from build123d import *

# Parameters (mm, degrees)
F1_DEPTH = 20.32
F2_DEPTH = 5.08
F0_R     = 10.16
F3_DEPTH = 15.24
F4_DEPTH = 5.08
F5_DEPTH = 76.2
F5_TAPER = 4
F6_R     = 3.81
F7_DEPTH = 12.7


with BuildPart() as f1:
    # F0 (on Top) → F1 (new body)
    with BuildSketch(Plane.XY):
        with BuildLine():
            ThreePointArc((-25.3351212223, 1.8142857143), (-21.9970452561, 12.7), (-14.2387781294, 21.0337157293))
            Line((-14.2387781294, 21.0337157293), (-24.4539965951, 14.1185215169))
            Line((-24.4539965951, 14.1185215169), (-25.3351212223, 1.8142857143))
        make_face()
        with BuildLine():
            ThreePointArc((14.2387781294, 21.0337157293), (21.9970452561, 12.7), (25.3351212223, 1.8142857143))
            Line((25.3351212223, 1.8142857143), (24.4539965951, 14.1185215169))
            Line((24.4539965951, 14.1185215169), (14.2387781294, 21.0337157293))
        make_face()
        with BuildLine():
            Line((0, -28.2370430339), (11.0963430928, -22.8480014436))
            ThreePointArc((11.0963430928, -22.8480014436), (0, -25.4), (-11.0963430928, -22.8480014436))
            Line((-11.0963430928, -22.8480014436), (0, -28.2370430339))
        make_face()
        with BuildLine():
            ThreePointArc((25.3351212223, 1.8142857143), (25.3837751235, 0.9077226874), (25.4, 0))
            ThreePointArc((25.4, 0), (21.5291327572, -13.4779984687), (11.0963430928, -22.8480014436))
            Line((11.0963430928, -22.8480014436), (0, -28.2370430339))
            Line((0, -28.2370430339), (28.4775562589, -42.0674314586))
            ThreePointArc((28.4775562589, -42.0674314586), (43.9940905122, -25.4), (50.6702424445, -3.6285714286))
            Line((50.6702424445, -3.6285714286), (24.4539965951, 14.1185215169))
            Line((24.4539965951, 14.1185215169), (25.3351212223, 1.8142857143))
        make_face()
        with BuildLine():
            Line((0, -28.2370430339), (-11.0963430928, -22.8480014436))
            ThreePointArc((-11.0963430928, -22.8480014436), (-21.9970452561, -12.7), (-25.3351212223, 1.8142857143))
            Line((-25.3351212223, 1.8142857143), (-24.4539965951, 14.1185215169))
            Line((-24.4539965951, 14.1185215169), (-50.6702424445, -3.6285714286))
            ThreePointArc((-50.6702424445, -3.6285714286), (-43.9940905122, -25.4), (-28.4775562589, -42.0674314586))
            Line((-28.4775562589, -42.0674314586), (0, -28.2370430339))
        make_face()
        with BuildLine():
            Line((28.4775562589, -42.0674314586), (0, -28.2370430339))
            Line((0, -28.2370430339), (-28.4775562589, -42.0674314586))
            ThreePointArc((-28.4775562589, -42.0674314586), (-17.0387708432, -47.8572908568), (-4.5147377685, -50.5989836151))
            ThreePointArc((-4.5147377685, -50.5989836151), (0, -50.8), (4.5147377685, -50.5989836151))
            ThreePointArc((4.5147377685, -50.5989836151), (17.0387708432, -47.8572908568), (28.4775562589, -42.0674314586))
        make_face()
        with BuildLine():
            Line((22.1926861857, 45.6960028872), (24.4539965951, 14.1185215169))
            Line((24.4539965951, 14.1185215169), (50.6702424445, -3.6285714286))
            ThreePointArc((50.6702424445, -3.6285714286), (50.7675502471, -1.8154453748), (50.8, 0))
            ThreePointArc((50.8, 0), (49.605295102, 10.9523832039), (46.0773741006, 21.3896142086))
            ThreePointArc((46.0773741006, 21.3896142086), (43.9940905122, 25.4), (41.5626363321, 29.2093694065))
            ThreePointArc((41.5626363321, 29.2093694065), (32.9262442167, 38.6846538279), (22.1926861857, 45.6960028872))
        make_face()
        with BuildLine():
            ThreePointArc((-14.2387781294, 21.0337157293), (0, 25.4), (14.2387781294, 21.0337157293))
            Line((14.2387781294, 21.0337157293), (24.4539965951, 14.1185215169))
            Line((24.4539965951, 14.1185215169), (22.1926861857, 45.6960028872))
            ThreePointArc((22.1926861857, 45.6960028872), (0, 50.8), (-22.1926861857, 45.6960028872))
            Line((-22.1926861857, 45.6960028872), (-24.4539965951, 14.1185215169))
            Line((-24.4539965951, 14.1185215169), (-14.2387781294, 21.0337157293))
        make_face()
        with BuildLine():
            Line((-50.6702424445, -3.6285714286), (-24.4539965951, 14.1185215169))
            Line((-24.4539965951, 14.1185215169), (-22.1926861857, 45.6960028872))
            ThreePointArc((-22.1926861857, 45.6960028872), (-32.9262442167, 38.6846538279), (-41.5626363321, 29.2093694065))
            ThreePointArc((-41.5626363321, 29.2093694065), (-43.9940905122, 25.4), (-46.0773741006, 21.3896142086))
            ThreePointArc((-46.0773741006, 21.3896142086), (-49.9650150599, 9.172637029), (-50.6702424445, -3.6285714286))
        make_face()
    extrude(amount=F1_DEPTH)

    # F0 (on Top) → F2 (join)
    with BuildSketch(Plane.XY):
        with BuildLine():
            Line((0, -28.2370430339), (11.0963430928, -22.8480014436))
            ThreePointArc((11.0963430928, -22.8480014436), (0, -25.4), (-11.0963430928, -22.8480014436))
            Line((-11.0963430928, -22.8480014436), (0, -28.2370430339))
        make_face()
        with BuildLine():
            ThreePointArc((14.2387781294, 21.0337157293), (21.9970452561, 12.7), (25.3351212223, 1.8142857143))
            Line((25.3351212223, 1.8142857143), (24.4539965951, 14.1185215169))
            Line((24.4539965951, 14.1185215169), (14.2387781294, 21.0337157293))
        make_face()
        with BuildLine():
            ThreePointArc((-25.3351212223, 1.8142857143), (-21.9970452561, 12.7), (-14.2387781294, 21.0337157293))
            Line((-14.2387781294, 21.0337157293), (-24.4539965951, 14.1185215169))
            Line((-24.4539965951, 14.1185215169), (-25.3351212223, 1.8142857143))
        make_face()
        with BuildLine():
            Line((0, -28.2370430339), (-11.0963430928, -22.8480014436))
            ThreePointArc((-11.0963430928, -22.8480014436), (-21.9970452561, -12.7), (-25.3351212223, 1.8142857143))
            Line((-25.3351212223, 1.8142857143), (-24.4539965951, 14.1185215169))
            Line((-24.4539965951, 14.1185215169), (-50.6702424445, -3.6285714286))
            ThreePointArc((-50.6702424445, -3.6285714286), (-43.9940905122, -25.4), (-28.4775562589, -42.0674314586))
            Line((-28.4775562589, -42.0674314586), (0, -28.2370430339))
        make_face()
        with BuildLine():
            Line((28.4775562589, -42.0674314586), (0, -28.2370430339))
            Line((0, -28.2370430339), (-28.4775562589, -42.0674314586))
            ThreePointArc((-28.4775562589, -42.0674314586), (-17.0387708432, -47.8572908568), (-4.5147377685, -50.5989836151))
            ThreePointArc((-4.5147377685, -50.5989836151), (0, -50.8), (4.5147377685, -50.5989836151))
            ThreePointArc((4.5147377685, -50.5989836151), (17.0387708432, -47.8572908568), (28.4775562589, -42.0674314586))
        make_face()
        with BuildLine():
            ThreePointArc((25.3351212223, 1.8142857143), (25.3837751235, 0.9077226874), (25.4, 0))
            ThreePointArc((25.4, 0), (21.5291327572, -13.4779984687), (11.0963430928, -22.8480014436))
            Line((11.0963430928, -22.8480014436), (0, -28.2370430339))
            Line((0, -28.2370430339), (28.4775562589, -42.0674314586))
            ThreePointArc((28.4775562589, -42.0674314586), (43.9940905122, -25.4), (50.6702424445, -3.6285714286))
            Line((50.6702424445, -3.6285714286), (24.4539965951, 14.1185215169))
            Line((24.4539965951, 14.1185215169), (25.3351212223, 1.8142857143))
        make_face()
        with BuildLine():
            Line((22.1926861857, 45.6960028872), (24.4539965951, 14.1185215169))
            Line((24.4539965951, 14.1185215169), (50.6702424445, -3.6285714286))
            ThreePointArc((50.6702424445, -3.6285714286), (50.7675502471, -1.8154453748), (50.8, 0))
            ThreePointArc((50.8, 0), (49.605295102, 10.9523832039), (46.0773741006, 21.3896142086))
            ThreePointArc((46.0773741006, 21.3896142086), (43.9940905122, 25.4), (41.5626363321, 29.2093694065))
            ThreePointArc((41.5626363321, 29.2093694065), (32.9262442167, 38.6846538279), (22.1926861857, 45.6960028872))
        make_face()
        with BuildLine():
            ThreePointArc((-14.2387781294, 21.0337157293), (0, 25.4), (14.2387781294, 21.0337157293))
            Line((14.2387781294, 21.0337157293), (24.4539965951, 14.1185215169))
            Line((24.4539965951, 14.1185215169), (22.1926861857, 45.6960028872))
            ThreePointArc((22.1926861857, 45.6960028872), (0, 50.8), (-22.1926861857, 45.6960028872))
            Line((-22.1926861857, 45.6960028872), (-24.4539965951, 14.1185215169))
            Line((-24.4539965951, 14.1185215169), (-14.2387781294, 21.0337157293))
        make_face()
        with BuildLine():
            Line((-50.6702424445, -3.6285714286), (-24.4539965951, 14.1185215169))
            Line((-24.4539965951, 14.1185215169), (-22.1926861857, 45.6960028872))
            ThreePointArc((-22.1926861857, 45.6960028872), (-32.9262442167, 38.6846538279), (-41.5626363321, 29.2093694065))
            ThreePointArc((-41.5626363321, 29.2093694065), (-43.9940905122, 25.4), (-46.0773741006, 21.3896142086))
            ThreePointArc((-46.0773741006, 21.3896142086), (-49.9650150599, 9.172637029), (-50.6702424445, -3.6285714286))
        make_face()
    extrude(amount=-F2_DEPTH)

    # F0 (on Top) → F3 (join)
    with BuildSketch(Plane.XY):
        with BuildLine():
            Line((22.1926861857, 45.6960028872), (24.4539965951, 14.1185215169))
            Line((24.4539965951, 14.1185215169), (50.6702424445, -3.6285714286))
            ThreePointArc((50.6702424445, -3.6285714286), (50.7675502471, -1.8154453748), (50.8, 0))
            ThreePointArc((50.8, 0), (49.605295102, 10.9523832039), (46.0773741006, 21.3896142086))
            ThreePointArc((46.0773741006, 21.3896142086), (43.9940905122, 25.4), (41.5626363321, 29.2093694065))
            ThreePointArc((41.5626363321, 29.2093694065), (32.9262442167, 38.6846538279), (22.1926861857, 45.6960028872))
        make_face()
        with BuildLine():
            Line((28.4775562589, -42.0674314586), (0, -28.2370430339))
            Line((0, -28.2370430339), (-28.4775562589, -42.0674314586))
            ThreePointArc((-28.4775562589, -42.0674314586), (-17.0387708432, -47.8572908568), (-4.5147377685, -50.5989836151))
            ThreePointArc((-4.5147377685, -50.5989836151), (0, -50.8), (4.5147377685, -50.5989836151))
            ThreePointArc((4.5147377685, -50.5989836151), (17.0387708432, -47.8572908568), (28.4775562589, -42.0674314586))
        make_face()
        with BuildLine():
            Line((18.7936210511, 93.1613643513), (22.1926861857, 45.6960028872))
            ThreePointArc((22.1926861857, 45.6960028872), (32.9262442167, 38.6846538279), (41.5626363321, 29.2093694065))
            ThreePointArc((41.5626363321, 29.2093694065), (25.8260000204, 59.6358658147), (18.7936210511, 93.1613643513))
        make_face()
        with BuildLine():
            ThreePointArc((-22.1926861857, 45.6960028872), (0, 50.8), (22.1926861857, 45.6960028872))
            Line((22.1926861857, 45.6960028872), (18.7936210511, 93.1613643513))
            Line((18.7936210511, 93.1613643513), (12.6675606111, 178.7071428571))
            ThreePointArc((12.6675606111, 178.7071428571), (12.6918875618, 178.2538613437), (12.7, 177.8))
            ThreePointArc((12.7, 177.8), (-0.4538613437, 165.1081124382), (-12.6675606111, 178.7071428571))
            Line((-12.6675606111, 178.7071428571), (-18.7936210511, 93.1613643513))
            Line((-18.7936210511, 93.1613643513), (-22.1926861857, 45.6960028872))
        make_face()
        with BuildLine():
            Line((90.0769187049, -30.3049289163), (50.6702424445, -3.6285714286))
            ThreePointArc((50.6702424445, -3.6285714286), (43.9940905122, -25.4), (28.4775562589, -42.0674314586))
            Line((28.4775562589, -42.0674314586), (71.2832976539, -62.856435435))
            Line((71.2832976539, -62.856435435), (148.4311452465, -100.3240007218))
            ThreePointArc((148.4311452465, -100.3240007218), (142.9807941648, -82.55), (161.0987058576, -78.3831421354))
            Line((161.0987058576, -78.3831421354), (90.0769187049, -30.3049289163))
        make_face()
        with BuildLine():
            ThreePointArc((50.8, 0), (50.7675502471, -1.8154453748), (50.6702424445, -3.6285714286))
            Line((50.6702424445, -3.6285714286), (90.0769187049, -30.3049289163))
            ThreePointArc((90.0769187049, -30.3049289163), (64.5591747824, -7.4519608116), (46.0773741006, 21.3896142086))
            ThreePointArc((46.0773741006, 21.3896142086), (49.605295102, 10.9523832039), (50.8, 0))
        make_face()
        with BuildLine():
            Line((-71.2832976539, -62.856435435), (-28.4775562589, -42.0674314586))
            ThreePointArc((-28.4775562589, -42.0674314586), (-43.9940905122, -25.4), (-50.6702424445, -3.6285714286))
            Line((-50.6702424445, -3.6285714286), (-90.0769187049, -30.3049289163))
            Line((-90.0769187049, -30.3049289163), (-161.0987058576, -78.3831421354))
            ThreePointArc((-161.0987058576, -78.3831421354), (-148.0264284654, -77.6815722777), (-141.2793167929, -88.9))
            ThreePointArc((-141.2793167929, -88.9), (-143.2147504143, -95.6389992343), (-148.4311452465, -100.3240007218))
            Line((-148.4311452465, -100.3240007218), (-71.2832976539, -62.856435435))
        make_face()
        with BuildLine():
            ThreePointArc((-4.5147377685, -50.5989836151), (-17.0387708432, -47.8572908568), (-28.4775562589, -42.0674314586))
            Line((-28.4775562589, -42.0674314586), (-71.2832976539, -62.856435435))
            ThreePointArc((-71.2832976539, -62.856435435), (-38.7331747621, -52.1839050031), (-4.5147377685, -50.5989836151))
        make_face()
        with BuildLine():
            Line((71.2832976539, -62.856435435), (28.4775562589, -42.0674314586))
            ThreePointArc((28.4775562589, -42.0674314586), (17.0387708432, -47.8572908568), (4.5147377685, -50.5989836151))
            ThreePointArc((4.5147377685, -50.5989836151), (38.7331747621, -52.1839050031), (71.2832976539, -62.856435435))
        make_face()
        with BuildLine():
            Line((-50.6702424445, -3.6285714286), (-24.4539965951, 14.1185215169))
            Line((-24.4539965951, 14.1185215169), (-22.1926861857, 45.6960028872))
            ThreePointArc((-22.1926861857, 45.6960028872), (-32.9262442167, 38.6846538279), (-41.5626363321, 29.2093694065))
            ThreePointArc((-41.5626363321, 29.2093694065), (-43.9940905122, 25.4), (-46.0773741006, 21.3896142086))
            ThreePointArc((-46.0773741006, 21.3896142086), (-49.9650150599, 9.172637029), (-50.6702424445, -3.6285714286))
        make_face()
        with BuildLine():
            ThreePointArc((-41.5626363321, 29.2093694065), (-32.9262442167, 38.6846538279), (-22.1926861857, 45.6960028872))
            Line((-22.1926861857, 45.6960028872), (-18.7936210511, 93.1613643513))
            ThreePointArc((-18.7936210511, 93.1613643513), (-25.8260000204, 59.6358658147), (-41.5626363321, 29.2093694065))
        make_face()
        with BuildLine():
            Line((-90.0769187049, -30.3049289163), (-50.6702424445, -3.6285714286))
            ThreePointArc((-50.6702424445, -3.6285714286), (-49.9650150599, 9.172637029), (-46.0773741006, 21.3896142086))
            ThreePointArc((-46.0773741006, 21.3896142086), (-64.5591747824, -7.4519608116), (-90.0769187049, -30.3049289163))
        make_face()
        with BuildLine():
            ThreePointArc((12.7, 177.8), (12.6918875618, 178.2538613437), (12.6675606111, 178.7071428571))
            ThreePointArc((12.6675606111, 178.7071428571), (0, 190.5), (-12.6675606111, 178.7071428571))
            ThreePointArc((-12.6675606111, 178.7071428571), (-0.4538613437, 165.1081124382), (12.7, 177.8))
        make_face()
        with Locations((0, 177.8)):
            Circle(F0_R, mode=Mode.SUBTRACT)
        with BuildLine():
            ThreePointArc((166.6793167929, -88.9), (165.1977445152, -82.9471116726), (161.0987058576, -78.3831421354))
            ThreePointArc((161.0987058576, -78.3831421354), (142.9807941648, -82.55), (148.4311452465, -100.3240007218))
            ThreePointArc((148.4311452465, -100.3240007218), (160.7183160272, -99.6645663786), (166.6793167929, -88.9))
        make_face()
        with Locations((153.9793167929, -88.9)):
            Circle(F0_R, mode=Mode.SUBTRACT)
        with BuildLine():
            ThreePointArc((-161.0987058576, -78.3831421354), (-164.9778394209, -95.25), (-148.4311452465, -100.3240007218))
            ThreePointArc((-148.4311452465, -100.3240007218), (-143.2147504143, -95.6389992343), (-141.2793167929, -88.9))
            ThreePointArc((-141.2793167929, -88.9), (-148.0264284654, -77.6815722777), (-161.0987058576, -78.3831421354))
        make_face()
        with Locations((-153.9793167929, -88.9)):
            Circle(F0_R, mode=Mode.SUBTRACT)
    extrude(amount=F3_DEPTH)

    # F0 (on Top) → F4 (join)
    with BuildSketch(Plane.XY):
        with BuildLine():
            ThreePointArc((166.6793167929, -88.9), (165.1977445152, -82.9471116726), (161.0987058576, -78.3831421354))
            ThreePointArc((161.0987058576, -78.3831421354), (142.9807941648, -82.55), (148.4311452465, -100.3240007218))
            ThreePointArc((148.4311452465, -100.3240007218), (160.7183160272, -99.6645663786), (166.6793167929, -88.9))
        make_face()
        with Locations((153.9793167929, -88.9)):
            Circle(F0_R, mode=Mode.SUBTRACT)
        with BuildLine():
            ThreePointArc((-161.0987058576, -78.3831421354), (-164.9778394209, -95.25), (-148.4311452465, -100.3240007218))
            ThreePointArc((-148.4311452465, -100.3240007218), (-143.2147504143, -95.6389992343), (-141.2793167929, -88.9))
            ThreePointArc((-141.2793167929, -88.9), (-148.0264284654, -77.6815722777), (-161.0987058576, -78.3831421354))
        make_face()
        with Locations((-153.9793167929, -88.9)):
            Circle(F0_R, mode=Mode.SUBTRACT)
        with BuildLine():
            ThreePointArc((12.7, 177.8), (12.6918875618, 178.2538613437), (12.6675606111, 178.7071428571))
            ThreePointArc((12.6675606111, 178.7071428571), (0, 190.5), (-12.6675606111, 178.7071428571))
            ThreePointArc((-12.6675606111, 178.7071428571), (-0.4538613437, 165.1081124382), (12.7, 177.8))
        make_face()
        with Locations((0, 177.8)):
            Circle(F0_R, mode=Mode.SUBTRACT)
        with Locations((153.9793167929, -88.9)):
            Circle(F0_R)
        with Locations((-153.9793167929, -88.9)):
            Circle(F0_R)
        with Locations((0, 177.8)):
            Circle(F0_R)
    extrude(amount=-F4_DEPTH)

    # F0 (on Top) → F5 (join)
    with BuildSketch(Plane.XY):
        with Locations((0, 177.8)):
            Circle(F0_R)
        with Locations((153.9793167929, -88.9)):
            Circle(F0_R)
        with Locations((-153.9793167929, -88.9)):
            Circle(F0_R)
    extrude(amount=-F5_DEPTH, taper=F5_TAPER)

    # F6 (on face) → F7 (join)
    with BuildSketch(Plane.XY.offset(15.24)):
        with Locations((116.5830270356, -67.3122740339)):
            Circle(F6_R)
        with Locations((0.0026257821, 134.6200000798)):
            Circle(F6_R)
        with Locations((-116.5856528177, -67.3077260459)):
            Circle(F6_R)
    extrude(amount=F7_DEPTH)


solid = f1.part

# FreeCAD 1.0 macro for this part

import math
import FreeCAD as App
import Part
import Sketcher
Q = App.Units.Quantity

doc = App.newDocument("Part")
body = doc.addObject("PartDesign::Body", "Body")

sketch1 = body.newObject("Sketcher::SketchObject", "Sketch")
sketch1.AttachmentSupport = (doc.getObject("XY_Plane"), [""])
sketch1.MapMode = "FlatFace"
sketch1.addGeometry(Part.ArcOfCircle(Part.Circle(App.Vector(0, 0, 0), App.Vector(0, 0, 1), 50.8), math.radians(-176), math.radians(-124)), False)
sketch1.addGeometry(Part.ArcOfCircle(Part.Circle(App.Vector(0, 0, 0), App.Vector(0, 0, 1), 50.8), math.radians(-124), math.radians(-85)), False)
sketch1.addGeometry(Part.ArcOfCircle(Part.Circle(App.Vector(0, 0, 0), App.Vector(0, 0, 1), 50.8), math.radians(-85), math.radians(-56)), False)
sketch1.addGeometry(Part.ArcOfCircle(Part.Circle(App.Vector(0, 0, 0), App.Vector(0, 0, 1), 50.8), math.radians(-56), math.radians(-4)), False)
sketch1.addGeometry(Part.ArcOfCircle(Part.Circle(App.Vector(0, 0, 0), App.Vector(0, 0, 1), 50.8), math.radians(-4.1), math.radians(0)), False)
sketch1.addGeometry(Part.ArcOfCircle(Part.Circle(App.Vector(0, 0, 0), App.Vector(0, 0, 1), 50.8), math.radians(0), math.radians(25)), False)
sketch1.addGeometry(Part.ArcOfCircle(Part.Circle(App.Vector(0, 0, 0), App.Vector(0, 0, 1), 50.8), math.radians(24.9), math.radians(35.1)), False)
sketch1.addGeometry(Part.ArcOfCircle(Part.Circle(App.Vector(0, 0, 0), App.Vector(0, 0, 1), 50.8), math.radians(35), math.radians(64)), False)
sketch1.addGeometry(Part.ArcOfCircle(Part.Circle(App.Vector(0, 0, 0), App.Vector(0, 0, 1), 50.8), math.radians(64), math.radians(116)), False)
sketch1.addGeometry(Part.ArcOfCircle(Part.Circle(App.Vector(0, 0, 0), App.Vector(0, 0, 1), 50.8), math.radians(116), math.radians(145)), False)
sketch1.addGeometry(Part.ArcOfCircle(Part.Circle(App.Vector(0, 0, 0), App.Vector(0, 0, 1), 50.8), math.radians(144.9), math.radians(155.1)), False)
sketch1.addGeometry(Part.ArcOfCircle(Part.Circle(App.Vector(0, 0, 0), App.Vector(0, 0, 1), 50.8), math.radians(155), math.radians(184)), False)
sketch1.addGeometry(Part.ArcOfCircle(Part.Circle(App.Vector(0, 0, 0), App.Vector(0, 0, 1), 25.4), math.radians(124), math.radians(176)), False)
sketch1.addGeometry(Part.ArcOfCircle(Part.Circle(App.Vector(0, 0, 0), App.Vector(0, 0, 1), 25.4), math.radians(56), math.radians(124)), False)
sketch1.addGeometry(Part.ArcOfCircle(Part.Circle(App.Vector(0, 0, 0), App.Vector(0, 0, 1), 25.4), math.radians(4), math.radians(56)), False)
sketch1.addGeometry(Part.ArcOfCircle(Part.Circle(App.Vector(0, 0, 0), App.Vector(0, 0, 1), 25.4), math.radians(0), math.radians(4.1)), False)
sketch1.addGeometry(Part.ArcOfCircle(Part.Circle(App.Vector(0, 0, 0), App.Vector(0, 0, 1), 25.4), math.radians(-116), math.radians(0)), False)
sketch1.addGeometry(Part.ArcOfCircle(Part.Circle(App.Vector(0, 0, 0), App.Vector(0, 0, 1), 25.4), math.radians(176), math.radians(244)), False)
sketch1.addConstraint(Sketcher.Constraint("Tangent", 0, 2, 1, 1))
sketch1.addConstraint(Sketcher.Constraint("Tangent", 1, 2, 2, 1))
sketch1.addConstraint(Sketcher.Constraint("Tangent", 2, 2, 3, 1))
sketch1.addConstraint(Sketcher.Constraint("Tangent", 3, 2, 4, 1))
sketch1.addConstraint(Sketcher.Constraint("Tangent", 4, 2, 5, 1))
sketch1.addConstraint(Sketcher.Constraint("Tangent", 5, 2, 6, 1))
sketch1.addConstraint(Sketcher.Constraint("Tangent", 6, 2, 7, 1))
sketch1.addConstraint(Sketcher.Constraint("Tangent", 7, 2, 8, 1))
sketch1.addConstraint(Sketcher.Constraint("Tangent", 8, 2, 9, 1))
sketch1.addConstraint(Sketcher.Constraint("Tangent", 9, 2, 10, 1))
sketch1.addConstraint(Sketcher.Constraint("Tangent", 10, 2, 11, 1))
sketch1.addConstraint(Sketcher.Constraint("Tangent", 11, 2, 0, 1))
sketch1.addConstraint(Sketcher.Constraint("Tangent", 12, 1, 13, 2))
sketch1.addConstraint(Sketcher.Constraint("Tangent", 13, 1, 14, 2))
sketch1.addConstraint(Sketcher.Constraint("Tangent", 14, 1, 15, 2))
sketch1.addConstraint(Sketcher.Constraint("Tangent", 15, 1, 16, 2))
sketch1.addConstraint(Sketcher.Constraint("Tangent", 16, 1, 17, 2))
sketch1.addConstraint(Sketcher.Constraint("Tangent", 17, 1, 12, 2))
sketch1.addConstraint(Sketcher.Constraint("Coincident", 0, 3, -1, 1))
sketch1.addConstraint(Sketcher.Constraint("Coincident", 2, 3, -1, 1))
sketch1.addConstraint(Sketcher.Constraint("Coincident", 4, 3, -1, 1))
sketch1.addConstraint(Sketcher.Constraint("Coincident", 6, 3, -1, 1))
sketch1.addConstraint(Sketcher.Constraint("Coincident", 8, 3, -1, 1))
sketch1.addConstraint(Sketcher.Constraint("Coincident", 12, 3, -1, 1))
sketch1.addConstraint(Sketcher.Constraint("Coincident", 14, 3, -1, 1))
sketch1.addConstraint(Sketcher.Constraint("Equal", 8, 9))
sketch1.addConstraint(Sketcher.Constraint("Equal", 14, 15))
sketch1.addConstraint(Sketcher.Constraint("PointOnObject", 4, 2, -1))
sketch1.addConstraint(Sketcher.Constraint("PointOnObject", 15, 1, -1))
sketch1.addConstraint(Sketcher.Constraint("Horizontal", 0, 2, 2, 2))
sketch1.addConstraint(Sketcher.Constraint("Horizontal", 7, 2, 8, 2))
sketch1.addConstraint(Sketcher.Constraint("Horizontal", 6, 2, 9, 2))
sketch1.addConstraint(Sketcher.Constraint("Horizontal", 5, 2, 10, 2))
sketch1.addConstraint(Sketcher.Constraint("Horizontal", 3, 2, 11, 2))
sketch1.addConstraint(Sketcher.Constraint("Horizontal", 12, 1, 13, 1))
sketch1.addConstraint(Sketcher.Constraint("Horizontal", 14, 1, 17, 1))
sketch1.addConstraint(Sketcher.Constraint("Radius", 0, Q("2 in")))
sketch1.addConstraint(Sketcher.Constraint("Radius", 12, Q("1 in")))
sketch1.addConstraint(Sketcher.Constraint("DistanceY", 16, 1, -1, 1, 22.848001))
sketch1.addConstraint(Sketcher.Constraint("DistanceY", 0, 2, -1, 1, 42.067431))
sketch1.addConstraint(Sketcher.Constraint("DistanceY", 3, 2, -1, 1, 3.628571))
sketch1.addConstraint(Sketcher.Constraint("DistanceY", -1, 1, 6, 2, 29.209369))
sketch1.addConstraint(Sketcher.Constraint("DistanceX", 12, 1, -1, 1, 14.238778))
sketch1.addConstraint(Sketcher.Constraint("DistanceX", -1, 1, 14, 1, 25.335121))
sketch1.addConstraint(Sketcher.Constraint("DistanceX", 1, 2, 2, 2, 23.962818))
sketch1.addConstraint(Sketcher.Constraint("DistanceX", 5, 2, 3, 2, 4.592868))
sketch1.addConstraint(Sketcher.Constraint("DistanceX", 7, 2, 6, 2, 19.36995))
pad1 = body.newObject("PartDesign::Pad", "Pad")
pad1.Profile = sketch1
pad1.Length = Q("0.8 in")

sketch2 = body.newObject("Sketcher::SketchObject", "Sketch001")
sketch2.AttachmentSupport = (doc.getObject("XY_Plane"), [""])
sketch2.MapMode = "FlatFace"
sketch2.addGeometry(Part.ArcOfCircle(Part.Circle(App.Vector(0, 0, 0), App.Vector(0, 0, 1), 50.8), math.radians(-176), math.radians(-124)), False)
sketch2.addGeometry(Part.ArcOfCircle(Part.Circle(App.Vector(0, 0, 0), App.Vector(0, 0, 1), 50.8), math.radians(-124), math.radians(-85)), False)
sketch2.addGeometry(Part.ArcOfCircle(Part.Circle(App.Vector(0, 0, 0), App.Vector(0, 0, 1), 50.8), math.radians(-85), math.radians(-56)), False)
sketch2.addGeometry(Part.ArcOfCircle(Part.Circle(App.Vector(0, 0, 0), App.Vector(0, 0, 1), 50.8), math.radians(-56), math.radians(-4)), False)
sketch2.addGeometry(Part.ArcOfCircle(Part.Circle(App.Vector(0, 0, 0), App.Vector(0, 0, 1), 50.8), math.radians(-4.1), math.radians(0)), False)
sketch2.addGeometry(Part.ArcOfCircle(Part.Circle(App.Vector(0, 0, 0), App.Vector(0, 0, 1), 50.8), math.radians(0), math.radians(25)), False)
sketch2.addGeometry(Part.ArcOfCircle(Part.Circle(App.Vector(0, 0, 0), App.Vector(0, 0, 1), 50.8), math.radians(24.9), math.radians(35.1)), False)
sketch2.addGeometry(Part.ArcOfCircle(Part.Circle(App.Vector(0, 0, 0), App.Vector(0, 0, 1), 50.8), math.radians(35), math.radians(64)), False)
sketch2.addGeometry(Part.ArcOfCircle(Part.Circle(App.Vector(0, 0, 0), App.Vector(0, 0, 1), 50.8), math.radians(64), math.radians(116)), False)
sketch2.addGeometry(Part.ArcOfCircle(Part.Circle(App.Vector(0, 0, 0), App.Vector(0, 0, 1), 50.8), math.radians(116), math.radians(145)), False)
sketch2.addGeometry(Part.ArcOfCircle(Part.Circle(App.Vector(0, 0, 0), App.Vector(0, 0, 1), 50.8), math.radians(144.9), math.radians(155.1)), False)
sketch2.addGeometry(Part.ArcOfCircle(Part.Circle(App.Vector(0, 0, 0), App.Vector(0, 0, 1), 50.8), math.radians(155), math.radians(184)), False)
sketch2.addGeometry(Part.ArcOfCircle(Part.Circle(App.Vector(0, 0, 0), App.Vector(0, 0, 1), 25.4), math.radians(176), math.radians(244)), False)
sketch2.addGeometry(Part.ArcOfCircle(Part.Circle(App.Vector(0, 0, 0), App.Vector(0, 0, 1), 25.4), math.radians(124), math.radians(176)), False)
sketch2.addGeometry(Part.ArcOfCircle(Part.Circle(App.Vector(0, 0, 0), App.Vector(0, 0, 1), 25.4), math.radians(56), math.radians(124)), False)
sketch2.addGeometry(Part.ArcOfCircle(Part.Circle(App.Vector(0, 0, 0), App.Vector(0, 0, 1), 25.4), math.radians(4), math.radians(56)), False)
sketch2.addGeometry(Part.ArcOfCircle(Part.Circle(App.Vector(0, 0, 0), App.Vector(0, 0, 1), 25.4), math.radians(0), math.radians(4.1)), False)
sketch2.addGeometry(Part.ArcOfCircle(Part.Circle(App.Vector(0, 0, 0), App.Vector(0, 0, 1), 25.4), math.radians(-116), math.radians(0)), False)
sketch2.addConstraint(Sketcher.Constraint("Tangent", 0, 2, 1, 1))
sketch2.addConstraint(Sketcher.Constraint("Tangent", 1, 2, 2, 1))
sketch2.addConstraint(Sketcher.Constraint("Tangent", 2, 2, 3, 1))
sketch2.addConstraint(Sketcher.Constraint("Tangent", 3, 2, 4, 1))
sketch2.addConstraint(Sketcher.Constraint("Tangent", 4, 2, 5, 1))
sketch2.addConstraint(Sketcher.Constraint("Tangent", 5, 2, 6, 1))
sketch2.addConstraint(Sketcher.Constraint("Tangent", 6, 2, 7, 1))
sketch2.addConstraint(Sketcher.Constraint("Tangent", 7, 2, 8, 1))
sketch2.addConstraint(Sketcher.Constraint("Tangent", 8, 2, 9, 1))
sketch2.addConstraint(Sketcher.Constraint("Tangent", 9, 2, 10, 1))
sketch2.addConstraint(Sketcher.Constraint("Tangent", 10, 2, 11, 1))
sketch2.addConstraint(Sketcher.Constraint("Tangent", 11, 2, 0, 1))
sketch2.addConstraint(Sketcher.Constraint("Tangent", 12, 1, 13, 2))
sketch2.addConstraint(Sketcher.Constraint("Tangent", 13, 1, 14, 2))
sketch2.addConstraint(Sketcher.Constraint("Tangent", 14, 1, 15, 2))
sketch2.addConstraint(Sketcher.Constraint("Tangent", 15, 1, 16, 2))
sketch2.addConstraint(Sketcher.Constraint("Tangent", 16, 1, 17, 2))
sketch2.addConstraint(Sketcher.Constraint("Tangent", 17, 1, 12, 2))
sketch2.addConstraint(Sketcher.Constraint("Coincident", 0, 3, -1, 1))
sketch2.addConstraint(Sketcher.Constraint("Coincident", 2, 3, -1, 1))
sketch2.addConstraint(Sketcher.Constraint("Coincident", 4, 3, -1, 1))
sketch2.addConstraint(Sketcher.Constraint("Coincident", 6, 3, -1, 1))
sketch2.addConstraint(Sketcher.Constraint("Coincident", 8, 3, -1, 1))
sketch2.addConstraint(Sketcher.Constraint("Coincident", 12, 3, -1, 1))
sketch2.addConstraint(Sketcher.Constraint("Coincident", 14, 3, -1, 1))
sketch2.addConstraint(Sketcher.Constraint("Equal", 8, 9))
sketch2.addConstraint(Sketcher.Constraint("Equal", 14, 15))
sketch2.addConstraint(Sketcher.Constraint("PointOnObject", 4, 2, -1))
sketch2.addConstraint(Sketcher.Constraint("PointOnObject", 16, 1, -1))
sketch2.addConstraint(Sketcher.Constraint("Horizontal", 0, 2, 2, 2))
sketch2.addConstraint(Sketcher.Constraint("Horizontal", 7, 2, 8, 2))
sketch2.addConstraint(Sketcher.Constraint("Horizontal", 6, 2, 9, 2))
sketch2.addConstraint(Sketcher.Constraint("Horizontal", 5, 2, 10, 2))
sketch2.addConstraint(Sketcher.Constraint("Horizontal", 3, 2, 11, 2))
sketch2.addConstraint(Sketcher.Constraint("Horizontal", 13, 1, 14, 1))
sketch2.addConstraint(Sketcher.Constraint("Horizontal", 12, 1, 15, 1))
sketch2.addConstraint(Sketcher.Constraint("Radius", 0, Q("2 in")))
sketch2.addConstraint(Sketcher.Constraint("Radius", 12, Q("1 in")))
sketch2.addConstraint(Sketcher.Constraint("DistanceY", 17, 1, -1, 1, 22.848001))
sketch2.addConstraint(Sketcher.Constraint("DistanceY", 0, 2, -1, 1, 42.067431))
sketch2.addConstraint(Sketcher.Constraint("DistanceY", 3, 2, -1, 1, 3.628571))
sketch2.addConstraint(Sketcher.Constraint("DistanceY", -1, 1, 6, 2, 29.209369))
sketch2.addConstraint(Sketcher.Constraint("DistanceX", 12, 1, -1, 1, 25.335121))
sketch2.addConstraint(Sketcher.Constraint("DistanceX", 13, 1, -1, 1, 14.238778))
sketch2.addConstraint(Sketcher.Constraint("DistanceX", 1, 2, 2, 2, 23.962818))
sketch2.addConstraint(Sketcher.Constraint("DistanceX", 5, 2, 3, 2, 4.592868))
sketch2.addConstraint(Sketcher.Constraint("DistanceX", 7, 2, 6, 2, 19.36995))
pad2 = body.newObject("PartDesign::Pad", "Pad001")
pad2.Profile = sketch2
pad2.Length = Q("0.2 in")
pad2.Reversed = True

sketch3 = body.newObject("Sketcher::SketchObject", "Sketch002")
sketch3.AttachmentSupport = (doc.getObject("XY_Plane"), [""])
sketch3.MapMode = "FlatFace"
sketch3.addGeometry(Part.ArcOfCircle(Part.Circle(App.Vector(0, 0, 0), App.Vector(0, 0, 1), 51), math.radians(144.9), math.radians(155.1)), False)
sketch3.addGeometry(Part.ArcOfCircle(Part.Circle(App.Vector(-161, 75, 0), App.Vector(0, 0, 1), 127), math.radians(-56), math.radians(-25)), False)
sketch3.addGeometry(Part.LineSegment(App.Vector(-90, -30, 0), App.Vector(-161, -78, 0)), False)
sketch3.addGeometry(Part.ArcOfCircle(Part.Circle(App.Vector(-154, -89, 0), App.Vector(0, 0, 1), 13), math.radians(124), math.radians(296)), False)
sketch3.addGeometry(Part.LineSegment(App.Vector(-148, -100, 0), App.Vector(-71, -63, 0)), False)
sketch3.addGeometry(Part.ArcOfCircle(Part.Circle(App.Vector(-16, -177, 0), App.Vector(0, 0, 1), 127), math.radians(85), math.radians(116)), False)
sketch3.addGeometry(Part.ArcOfCircle(Part.Circle(App.Vector(0, 0, 0), App.Vector(0, 0, 1), 51), math.radians(-95.1), math.radians(-84.9)), False)
sketch3.addGeometry(Part.ArcOfCircle(Part.Circle(App.Vector(16, -177, 0), App.Vector(0, 0, 1), 127), math.radians(64), math.radians(95)), False)
sketch3.addGeometry(Part.LineSegment(App.Vector(71, -63, 0), App.Vector(148, -100, 0)), False)
sketch3.addGeometry(Part.ArcOfCircle(Part.Circle(App.Vector(154, -89, 0), App.Vector(0, 0, 1), 13), math.radians(-116), math.radians(0)), False)
sketch3.addGeometry(Part.ArcOfCircle(Part.Circle(App.Vector(154, -89, 0), App.Vector(0, 0, 1), 13), math.radians(0), math.radians(56)), False)
sketch3.addGeometry(Part.LineSegment(App.Vector(161, -78, 0), App.Vector(90, -30, 0)), False)
sketch3.addGeometry(Part.ArcOfCircle(Part.Circle(App.Vector(161, 75, 0), App.Vector(0, 0, 1), 127), math.radians(-155), math.radians(-124)), False)
sketch3.addGeometry(Part.ArcOfCircle(Part.Circle(App.Vector(0, 0, 0), App.Vector(0, 0, 1), 51), math.radians(24.9), math.radians(35.1)), False)
sketch3.addGeometry(Part.ArcOfCircle(Part.Circle(App.Vector(145, 102, 0), App.Vector(0, 0, 1), 127), math.radians(-176), math.radians(-145)), False)
sketch3.addGeometry(Part.LineSegment(App.Vector(19, 93, 0), App.Vector(13, 179, 0)), False)
sketch3.addGeometry(Part.ArcOfCircle(Part.Circle(App.Vector(0, 178, 0), App.Vector(0, 0, 1), 13), math.radians(4), math.radians(176)), False)
sketch3.addGeometry(Part.LineSegment(App.Vector(-13, 179, 0), App.Vector(-19, 93, 0)), False)
sketch3.addGeometry(Part.ArcOfCircle(Part.Circle(App.Vector(-145, 102, 0), App.Vector(0, 0, 1), 127), math.radians(-35), math.radians(-4)), False)
sketch3.addGeometry(Part.Circle(App.Vector(-154, -89, 0), App.Vector(0, 0, 1), 10), False)
sketch3.addGeometry(Part.Circle(App.Vector(154, -89, 0), App.Vector(0, 0, 1), 10), False)
sketch3.addGeometry(Part.ArcOfCircle(Part.Circle(App.Vector(0, 0, 0), App.Vector(0, 0, 1), 51), math.radians(-176), math.radians(-124)), False)
sketch3.addGeometry(Part.LineSegment(App.Vector(-51, -4, 0), App.Vector(-24, 14, 0)), False)
sketch3.addGeometry(Part.LineSegment(App.Vector(-24, 14, 0), App.Vector(-22, 46, 0)), False)
sketch3.addGeometry(Part.ArcOfCircle(Part.Circle(App.Vector(0, 0, 0), App.Vector(0, 0, 1), 51), math.radians(64), math.radians(116)), False)
sketch3.addGeometry(Part.LineSegment(App.Vector(22, 46, 0), App.Vector(24, 14, 0)), False)
sketch3.addGeometry(Part.LineSegment(App.Vector(24, 14, 0), App.Vector(51, -4, 0)), False)
sketch3.addGeometry(Part.ArcOfCircle(Part.Circle(App.Vector(0, 0, 0), App.Vector(0, 0, 1), 51), math.radians(-56), math.radians(-4)), False)
sketch3.addGeometry(Part.LineSegment(App.Vector(28, -42, 0), App.Vector(0, -28, 0)), False)
sketch3.addGeometry(Part.LineSegment(App.Vector(0, -28, 0), App.Vector(-28, -42, 0)), False)
sketch3.addGeometry(Part.Circle(App.Vector(0, 178, 0), App.Vector(0, 0, 1), 10), False)
sketch3.addConstraint(Sketcher.Constraint("Tangent", 0, 2, 1, 2))
sketch3.addConstraint(Sketcher.Constraint("Tangent", 1, 1, 2, 1))
sketch3.addConstraint(Sketcher.Constraint("Tangent", 2, 2, 3, 1))
sketch3.addConstraint(Sketcher.Constraint("Tangent", 3, 2, 4, 1))
sketch3.addConstraint(Sketcher.Constraint("Tangent", 4, 2, 5, 2))
sketch3.addConstraint(Sketcher.Constraint("Tangent", 5, 1, 6, 1))
sketch3.addConstraint(Sketcher.Constraint("Tangent", 6, 2, 7, 2))
sketch3.addConstraint(Sketcher.Constraint("Tangent", 7, 1, 8, 1))
sketch3.addConstraint(Sketcher.Constraint("Tangent", 8, 2, 9, 1))
sketch3.addConstraint(Sketcher.Constraint("Tangent", 9, 2, 10, 1))
sketch3.addConstraint(Sketcher.Constraint("Tangent", 10, 2, 11, 1))
sketch3.addConstraint(Sketcher.Constraint("Tangent", 11, 2, 12, 2))
sketch3.addConstraint(Sketcher.Constraint("Tangent", 12, 1, 13, 1))
sketch3.addConstraint(Sketcher.Constraint("Tangent", 13, 2, 14, 2))
sketch3.addConstraint(Sketcher.Constraint("Tangent", 14, 1, 15, 1))
sketch3.addConstraint(Sketcher.Constraint("Tangent", 15, 2, 16, 1))
sketch3.addConstraint(Sketcher.Constraint("Tangent", 16, 2, 17, 1))
sketch3.addConstraint(Sketcher.Constraint("Tangent", 17, 2, 18, 2))
sketch3.addConstraint(Sketcher.Constraint("Tangent", 18, 1, 0, 1))
sketch3.addConstraint(Sketcher.Constraint("Coincident", 21, 1, 22, 1))
sketch3.addConstraint(Sketcher.Constraint("Coincident", 22, 2, 23, 1))
sketch3.addConstraint(Sketcher.Constraint("Coincident", 23, 2, 24, 2))
sketch3.addConstraint(Sketcher.Constraint("Coincident", 24, 1, 25, 1))
sketch3.addConstraint(Sketcher.Constraint("Coincident", 25, 2, 26, 1))
sketch3.addConstraint(Sketcher.Constraint("Coincident", 26, 2, 27, 2))
sketch3.addConstraint(Sketcher.Constraint("Coincident", 27, 1, 28, 1))
sketch3.addConstraint(Sketcher.Constraint("Coincident", 28, 2, 29, 1))
sketch3.addConstraint(Sketcher.Constraint("Coincident", 29, 2, 21, 2))
sketch3.addConstraint(Sketcher.Constraint("Coincident", 0, 3, -1, 1))
sketch3.addConstraint(Sketcher.Constraint("Coincident", 6, 3, -1, 1))
sketch3.addConstraint(Sketcher.Constraint("Coincident", 13, 3, -1, 1))
sketch3.addConstraint(Sketcher.Constraint("Coincident", 21, 3, -1, 1))
sketch3.addConstraint(Sketcher.Constraint("Coincident", 24, 3, -1, 1))
sketch3.addConstraint(Sketcher.Constraint("Coincident", 27, 3, -1, 1))
sketch3.addConstraint(Sketcher.Constraint("Coincident", 19, 3, 3, 3))
sketch3.addConstraint(Sketcher.Constraint("Coincident", 20, 3, 9, 3))
sketch3.addConstraint(Sketcher.Constraint("Coincident", 30, 3, 16, 3))
sketch3.addConstraint(Sketcher.Constraint("Equal", 1, 5))
sketch3.addConstraint(Sketcher.Constraint("Equal", 0, 6))
sketch3.addConstraint(Sketcher.Constraint("Equal", 5, 7))
sketch3.addConstraint(Sketcher.Constraint("Equal", 3, 9))
sketch3.addConstraint(Sketcher.Constraint("Equal", 9, 10))
sketch3.addConstraint(Sketcher.Constraint("Equal", 7, 12))
sketch3.addConstraint(Sketcher.Constraint("Equal", 6, 13))
sketch3.addConstraint(Sketcher.Constraint("Equal", 12, 14))
sketch3.addConstraint(Sketcher.Constraint("Equal", 10, 16))
sketch3.addConstraint(Sketcher.Constraint("Equal", 14, 18))
sketch3.addConstraint(Sketcher.Constraint("Equal", 19, 20))
sketch3.addConstraint(Sketcher.Constraint("Equal", 13, 21))
sketch3.addConstraint(Sketcher.Constraint("Equal", 21, 24))
sketch3.addConstraint(Sketcher.Constraint("Equal", 24, 27))
sketch3.addConstraint(Sketcher.Constraint("Equal", 20, 30))
sketch3.addConstraint(Sketcher.Constraint("Symmetric", 3, 3, 9, 3, -2))
sketch3.addConstraint(Sketcher.Constraint("Symmetric", 15, 2, 16, 2, -2))
sketch3.addConstraint(Sketcher.Constraint("Symmetric", 22, 2, 25, 2, -2))
sketch3.addConstraint(Sketcher.Constraint("PointOnObject", 28, 2, -2))
sketch3.addConstraint(Sketcher.Constraint("Parallel", 2, 22))
sketch3.addConstraint(Sketcher.Constraint("Parallel", 17, 23))
sketch3.addConstraint(Sketcher.Constraint("Parallel", 15, 25))
sketch3.addConstraint(Sketcher.Constraint("Parallel", 11, 26))
sketch3.addConstraint(Sketcher.Constraint("Parallel", 8, 28))
sketch3.addConstraint(Sketcher.Constraint("Parallel", 4, 29))
sketch3.addConstraint(Sketcher.Constraint("Horizontal", 5, 3, 7, 3))
sketch3.addConstraint(Sketcher.Constraint("Horizontal", 1, 3, 12, 3))
sketch3.addConstraint(Sketcher.Constraint("Horizontal", 20, 3, 9, 2))
sketch3.addConstraint(Sketcher.Constraint("Equal", 2, 4))
sketch3.addConstraint(Sketcher.Constraint("Equal", 11, 15))
sketch3.addConstraint(Sketcher.Constraint("Equal", 22, 23))
sketch3.addConstraint(Sketcher.Constraint("Equal", 26, 28))
sketch3.addConstraint(Sketcher.Constraint("Radius", 0, Q("2 in")))
sketch3.addConstraint(Sketcher.Constraint("Radius", 1, Q("5 in")))
sketch3.addConstraint(Sketcher.Constraint("Diameter", 19, Q("0.8 in")))
sketch3.addConstraint(Sketcher.Constraint("Radius", 3, Q("0.5 in")))
sketch3.addConstraint(Sketcher.Constraint("DistanceY", -1, 1, 16, 3, Q("7 in")))
sketch3.addConstraint(Sketcher.Constraint("DistanceY", 3, 3, -1, 1, Q("3.5 in")))
sketch3.addConstraint(Sketcher.Constraint("DistanceY", 8, 2, -1, 1, 100.324001))
sketch3.addConstraint(Sketcher.Constraint("DistanceX", 3, 3, 7, 3, 169.780899))
sketch3.addConstraint(Sketcher.Constraint("DistanceY", 21, 1, -1, 1, 3.628571))
pad3 = body.newObject("PartDesign::Pad", "Pad002")
pad3.Profile = sketch3
pad3.Length = Q("0.6 in")

sketch4 = body.newObject("Sketcher::SketchObject", "Sketch003")
sketch4.AttachmentSupport = (doc.getObject("XY_Plane"), [""])
sketch4.MapMode = "FlatFace"
sketch4.addGeometry(Part.ArcOfCircle(Part.Circle(App.Vector(154, -88.9, 0), App.Vector(0, 0, 1), 12.7), math.radians(0), math.radians(56)), False)
sketch4.addGeometry(Part.ArcOfCircle(Part.Circle(App.Vector(154, -88.9, 0), App.Vector(0, 0, 1), 12.7), math.radians(56), math.radians(360)), False)
sketch4.addGeometry(Part.ArcOfCircle(Part.Circle(App.Vector(-154, -88.9, 0), App.Vector(0, 0, 1), 12.7), math.radians(124), math.radians(296)), False)
sketch4.addGeometry(Part.ArcOfCircle(Part.Circle(App.Vector(-154, -88.9, 0), App.Vector(0, 0, 1), 12.7), math.radians(-64), math.radians(0)), False)
sketch4.addGeometry(Part.ArcOfCircle(Part.Circle(App.Vector(-154, -88.9, 0), App.Vector(0, 0, 1), 12.7), math.radians(0), math.radians(124)), False)
sketch4.addGeometry(Part.ArcOfCircle(Part.Circle(App.Vector(0, 177.8, 0), App.Vector(0, 0, 1), 12.7), math.radians(0), math.radians(4.1)), False)
sketch4.addGeometry(Part.ArcOfCircle(Part.Circle(App.Vector(0, 177.8, 0), App.Vector(0, 0, 1), 12.7), math.radians(4), math.radians(176)), False)
sketch4.addGeometry(Part.ArcOfCircle(Part.Circle(App.Vector(0, 177.8, 0), App.Vector(0, 0, 1), 12.7), math.radians(176), math.radians(360)), False)
sketch4.addConstraint(Sketcher.Constraint("Tangent", 0, 1, 1, 2))
sketch4.addConstraint(Sketcher.Constraint("Coincident", 1, 1, 0, 2))
sketch4.addConstraint(Sketcher.Constraint("Tangent", 2, 2, 3, 1))
sketch4.addConstraint(Sketcher.Constraint("Tangent", 3, 2, 4, 1))
sketch4.addConstraint(Sketcher.Constraint("Tangent", 4, 2, 2, 1))
sketch4.addConstraint(Sketcher.Constraint("Tangent", 5, 2, 6, 1))
sketch4.addConstraint(Sketcher.Constraint("Tangent", 6, 2, 7, 1))
sketch4.addConstraint(Sketcher.Constraint("Tangent", 7, 2, 5, 1))
sketch4.addConstraint(Sketcher.Constraint("Equal", 1, 2))
sketch4.addConstraint(Sketcher.Constraint("Equal", 4, 5))
sketch4.addConstraint(Sketcher.Constraint("Symmetric", 0, 3, 2, 3, -2))
sketch4.addConstraint(Sketcher.Constraint("Symmetric", 5, 2, 6, 2, -2))
sketch4.addConstraint(Sketcher.Constraint("Horizontal", 4, 3, 0, 1))
sketch4.addConstraint(Sketcher.Constraint("Horizontal", 0, 1, 3, 2))
sketch4.addConstraint(Sketcher.Constraint("Horizontal", 1, 1, 4, 2))
sketch4.addConstraint(Sketcher.Constraint("Horizontal", 6, 3, 7, 2))
sketch4.addConstraint(Sketcher.Constraint("Radius", 0, Q("0.5 in")))
sketch4.addConstraint(Sketcher.Constraint("DistanceY", -1, 1, 5, 3, Q("7 in")))
sketch4.addConstraint(Sketcher.Constraint("DistanceY", 0, 3, -1, 1, Q("3.5 in")))
sketch4.addConstraint(Sketcher.Constraint("DistanceY", 2, 2, -1, 1, 100.324001))
sketch4.addConstraint(Sketcher.Constraint("DistanceX", -1, 1, 5, 2, 12.667561))
sketch4.addConstraint(Sketcher.Constraint("DistanceX", 1, 1, 0, 1, 5.580611))
sketch4.addConstraint(Sketcher.Constraint("DistanceX", -1, 1, 0, 3, 153.979317))
pad4 = body.newObject("PartDesign::Pad", "Pad003")
pad4.Profile = sketch4
pad4.Length = Q("0.2 in")
pad4.Reversed = True

sketch5 = body.newObject("Sketcher::SketchObject", "Sketch004")
sketch5.AttachmentSupport = (doc.getObject("XY_Plane"), [""])
sketch5.MapMode = "FlatFace"
sketch5.addGeometry(Part.Circle(App.Vector(0, 178, 0), App.Vector(0, 0, 1), 10), False)
sketch5.addGeometry(Part.Circle(App.Vector(154, -89, 0), App.Vector(0, 0, 1), 10), False)
sketch5.addGeometry(Part.Circle(App.Vector(-154, -89, 0), App.Vector(0, 0, 1), 10), False)
sketch5.addConstraint(Sketcher.Constraint("Equal", 0, 1))
sketch5.addConstraint(Sketcher.Constraint("Equal", 1, 2))
sketch5.addConstraint(Sketcher.Constraint("Symmetric", 1, 3, 2, 3, -2))
sketch5.addConstraint(Sketcher.Constraint("PointOnObject", 0, 3, -2))
sketch5.addConstraint(Sketcher.Constraint("Diameter", 0, Q("0.8 in")))
sketch5.addConstraint(Sketcher.Constraint("DistanceY", -1, 1, 0, 3, Q("7 in")))
sketch5.addConstraint(Sketcher.Constraint("DistanceY", 1, 3, -1, 1, Q("3.5 in")))
sketch5.addConstraint(Sketcher.Constraint("DistanceX", -1, 1, 1, 3, 153.979317))
pad5 = body.newObject("PartDesign::Pad", "Pad004")
pad5.Profile = sketch5
pad5.Length = Q("3 in")
pad5.Reversed = True
pad5.TaperAngle = -4

sketch6 = body.newObject("Sketcher::SketchObject", "Sketch005")
sketch6.AttachmentSupport = (doc.getObject("XY_Plane"), [""])
sketch6.MapMode = "FlatFace"
sketch6.AttachmentOffset = App.Placement(App.Vector(0, 0, 0.6 * 25.4), App.Rotation())
sketch6.addGeometry(Part.Circle(App.Vector(116.6, -67.3, 0), App.Vector(0, 0, 1), 3.8), False)
sketch6.addGeometry(Part.Circle(App.Vector(0, 134.6, 0), App.Vector(0, 0, 1), 3.8), False)
sketch6.addGeometry(Part.Circle(App.Vector(-116.6, -67.3, 0), App.Vector(0, 0, 1), 3.8), False)
sketch6.addConstraint(Sketcher.Constraint("Equal", 0, 1))
sketch6.addConstraint(Sketcher.Constraint("Equal", 1, 2))
sketch6.addConstraint(Sketcher.Constraint("Diameter", 0, Q("0.3 in")))
sketch6.addConstraint(Sketcher.Constraint("DistanceY", -1, 1, 1, 3, Q("5.3 in")))
sketch6.addConstraint(Sketcher.Constraint("DistanceX", 1, 3, 0, 3, 116.580401))
sketch6.addConstraint(Sketcher.Constraint("DistanceX", 2, 3, 1, 3, 116.588279))
sketch6.addConstraint(Sketcher.Constraint("DistanceX", -1, 1, 0, 3, 116.583027))
sketch6.addConstraint(Sketcher.Constraint("DistanceY", 0, 3, -1, 1, 67.312274))
sketch6.addConstraint(Sketcher.Constraint("DistanceY", 2, 3, -1, 1, 67.307726))
pad6 = body.newObject("PartDesign::Pad", "Pad005")
pad6.Profile = sketch6
pad6.Length = Q("0.5 in")

doc.recompute()
